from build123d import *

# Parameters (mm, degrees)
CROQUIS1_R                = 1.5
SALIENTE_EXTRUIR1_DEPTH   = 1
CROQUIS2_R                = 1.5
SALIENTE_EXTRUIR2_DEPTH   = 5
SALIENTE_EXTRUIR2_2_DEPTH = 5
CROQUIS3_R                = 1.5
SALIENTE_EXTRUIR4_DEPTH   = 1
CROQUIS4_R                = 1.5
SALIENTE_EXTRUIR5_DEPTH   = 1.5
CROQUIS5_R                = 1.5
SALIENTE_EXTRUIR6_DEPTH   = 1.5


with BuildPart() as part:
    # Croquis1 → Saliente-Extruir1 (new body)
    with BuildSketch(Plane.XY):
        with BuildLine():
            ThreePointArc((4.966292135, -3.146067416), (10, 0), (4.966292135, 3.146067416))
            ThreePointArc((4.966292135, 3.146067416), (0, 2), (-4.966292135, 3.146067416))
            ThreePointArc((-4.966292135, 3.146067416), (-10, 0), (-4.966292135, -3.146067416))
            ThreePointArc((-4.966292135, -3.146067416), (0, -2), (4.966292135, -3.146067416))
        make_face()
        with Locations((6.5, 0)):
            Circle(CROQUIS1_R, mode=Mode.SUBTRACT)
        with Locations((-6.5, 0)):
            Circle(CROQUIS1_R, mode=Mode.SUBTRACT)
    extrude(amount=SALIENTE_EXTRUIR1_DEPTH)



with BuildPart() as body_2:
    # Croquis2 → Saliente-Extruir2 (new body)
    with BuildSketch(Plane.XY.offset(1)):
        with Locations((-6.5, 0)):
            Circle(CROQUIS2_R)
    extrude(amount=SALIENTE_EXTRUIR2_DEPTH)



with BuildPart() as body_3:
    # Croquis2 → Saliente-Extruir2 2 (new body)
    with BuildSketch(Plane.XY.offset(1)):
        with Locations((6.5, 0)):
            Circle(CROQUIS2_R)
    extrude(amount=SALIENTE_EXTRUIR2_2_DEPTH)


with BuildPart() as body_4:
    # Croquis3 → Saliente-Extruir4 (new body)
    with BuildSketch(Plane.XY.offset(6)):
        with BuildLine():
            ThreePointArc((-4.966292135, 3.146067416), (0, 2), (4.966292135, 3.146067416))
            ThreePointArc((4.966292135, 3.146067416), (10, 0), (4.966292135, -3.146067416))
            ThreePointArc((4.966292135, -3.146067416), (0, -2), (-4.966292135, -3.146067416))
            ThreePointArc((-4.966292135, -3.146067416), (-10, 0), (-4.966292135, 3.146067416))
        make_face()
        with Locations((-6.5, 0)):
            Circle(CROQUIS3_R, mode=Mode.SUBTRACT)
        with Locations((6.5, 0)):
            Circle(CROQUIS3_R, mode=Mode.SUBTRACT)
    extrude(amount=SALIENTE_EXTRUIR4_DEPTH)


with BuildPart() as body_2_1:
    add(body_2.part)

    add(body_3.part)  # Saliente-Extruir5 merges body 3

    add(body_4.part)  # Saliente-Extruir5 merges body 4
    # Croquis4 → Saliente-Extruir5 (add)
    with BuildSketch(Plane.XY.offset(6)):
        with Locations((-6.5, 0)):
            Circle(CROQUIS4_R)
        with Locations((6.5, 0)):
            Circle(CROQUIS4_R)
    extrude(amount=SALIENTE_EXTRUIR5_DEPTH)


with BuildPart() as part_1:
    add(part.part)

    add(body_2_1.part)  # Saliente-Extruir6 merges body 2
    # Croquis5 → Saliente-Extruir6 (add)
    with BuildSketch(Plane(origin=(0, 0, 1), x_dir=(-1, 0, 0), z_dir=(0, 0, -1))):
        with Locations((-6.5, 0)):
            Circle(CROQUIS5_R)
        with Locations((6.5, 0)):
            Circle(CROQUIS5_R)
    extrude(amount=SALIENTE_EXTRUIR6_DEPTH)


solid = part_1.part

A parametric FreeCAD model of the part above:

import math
import FreeCAD as App
import Part
import Sketcher
from FreeCAD import Vector
Q = App.Units.Quantity

doc = App.newDocument("Part")
params = doc.addObject("Spreadsheet::Sheet", "Params")
for row, (alias, value) in enumerate([
    ("sketch1_diameter", "3 mm"),
    ("sketch1_radius", "3.5 mm"),
    ("pad1_length", "1 mm"),
    ("sketch2_diameter", "3 mm"),
    ("pad2_length", "5 mm"),
    ("sketch3_diameter", "3 mm"),
    ("pad3_length", "5 mm"),
    ("sketch4_diameter", "3 mm"),
    ("sketch4_radius", "3.5 mm"),
    ("pad4_length", "1 mm"),
    ("sketch5_diameter", "3 mm"),
    ("pad5_length", "1.5 mm"),
    ("sketch6_diameter", "3 mm"),
    ("pad6_length", "1.5 mm"),
], start=1):
    params.set(f"A{row}", alias)
    params.set(f"B{row}", "=" + value)
    params.setAlias(f"B{row}", alias)

body = doc.addObject("PartDesign::Body", "Body")

sketch1 = body.newObject("Sketcher::SketchObject", "Sketch")
sketch1.AttachmentSupport = (doc.getObject("XY_Plane"), [""])
sketch1.MapMode = "FlatFace"
sketch1.addGeometry([
    Part.ArcOfCircle(Part.Circle(Vector(6.5, 0, 0), Vector(0, 0, 1), 3.5), math.radians(-115.989234), math.radians(115.989234)),
    Part.ArcOfCircle(Part.Circle(Vector(0, 13.333333, 0), Vector(0, 0, 1), 11.333333), math.radians(-115.989234), math.radians(-64.010766)),
    Part.ArcOfCircle(Part.Circle(Vector(-6.5, 0, 0), Vector(0, 0, 1), 3.5), math.radians(64.010766), math.radians(295.989234)),
    Part.ArcOfCircle(Part.Circle(Vector(0, -13.333333, 0), Vector(0, 0, 1), 11.333333), math.radians(64.010766), math.radians(115.989234)),
    Part.Circle(Vector(-6.5, 0, 0), Vector(0, 0, 1), 1.5),
    Part.Circle(Vector(6.5, 0, 0), Vector(0, 0, 1), 1.5),
], False)
sketch1.addConstraint([
    Sketcher.Constraint("Tangent", 0, 2, 1, 2),
    Sketcher.Constraint("Tangent", 1, 1, 2, 1),
    Sketcher.Constraint("Tangent", 2, 2, 3, 2),
    Sketcher.Constraint("Tangent", 3, 1, 0, 1),
    Sketcher.Constraint("Coincident", 4, 3, 2, 3),
    Sketcher.Constraint("Coincident", 5, 3, 0, 3),
    Sketcher.Constraint("Equal", 0, 2),
    Sketcher.Constraint("Equal", 1, 3),
    Sketcher.Constraint("Equal", 4, 5),
    Sketcher.Constraint("Symmetric", 0, 3, 2, 3, -1, 1),
    Sketcher.Constraint("PointOnObject", 0, 3, -1),
    Sketcher.Constraint("Diameter", 4, Q("3 mm")),
    Sketcher.Constraint("Radius", 0, Q("3.5 mm")),
    Sketcher.Constraint("DistanceX", 2, 3, 0, 3, Q("13 mm")),
    Sketcher.Constraint("Radius", 1, Q("11.333333 mm")),
])
sketch1.setExpression("Constraints[11]", "Params.sketch1_diameter")
sketch1.setExpression("Constraints[12]", "Params.sketch1_radius")
pad1 = body.newObject("PartDesign::Pad", "Pad")
pad1.Profile = sketch1
pad1.setExpression("Length", "Params.pad1_length")
body2 = doc.addObject("PartDesign::Body", "Body001")

sketch2 = body2.newObject("Sketcher::SketchObject", "Sketch001")
sketch2.AttachmentSupport = (doc.getObject("XY_Plane001"), [""])
sketch2.MapMode = "FlatFace"
sketch2.AttachmentOffset = App.Placement(Vector(0, 0, 1), App.Rotation())
sketch2.addGeometry(Part.Circle(Vector(-6.5, 0, 0), Vector(0, 0, 1), 1.5), False)
sketch2.addConstraint([
    Sketcher.Constraint("PointOnObject", 0, 3, -1),
    Sketcher.Constraint("Diameter", 0, Q("3 mm")),
    Sketcher.Constraint("DistanceX", 0, 3, -1, 1, Q("6.5 mm")),
])
sketch2.setExpression("Constraints[1]", "Params.sketch2_diameter")
pad2 = body2.newObject("PartDesign::Pad", "Pad001")
pad2.Profile = sketch2
pad2.setExpression("Length", "Params.pad2_length")
body3 = doc.addObject("PartDesign::Body", "Body002")

sketch3 = body3.newObject("Sketcher::SketchObject", "Sketch002")
sketch3.AttachmentSupport = (doc.getObject("XY_Plane002"), [""])
sketch3.MapMode = "FlatFace"
sketch3.AttachmentOffset = App.Placement(Vector(0, 0, 1), App.Rotation())
sketch3.addGeometry(Part.Circle(Vector(6.5, 0, 0), Vector(0, 0, 1), 1.5), False)
sketch3.addConstraint([
    Sketcher.Constraint("PointOnObject", 0, 3, -1),
    Sketcher.Constraint("Diameter", 0, Q("3 mm")),
    Sketcher.Constraint("DistanceX", -1, 1, 0, 3, Q("6.5 mm")),
])
sketch3.setExpression("Constraints[1]", "Params.sketch3_diameter")
pad3 = body3.newObject("PartDesign::Pad", "Pad002")
pad3.Profile = sketch3
pad3.setExpression("Length", "Params.pad3_length")
body4 = doc.addObject("PartDesign::Body", "Body003")

sketch4 = body4.newObject("Sketcher::SketchObject", "Sketch003")
sketch4.AttachmentSupport = (doc.getObject("XY_Plane003"), [""])
sketch4.MapMode = "FlatFace"
sketch4.AttachmentOffset = App.Placement(Vector(0, 0, 6), App.Rotation())
sketch4.addGeometry([
    Part.ArcOfCircle(Part.Circle(Vector(0, 13.333333, 0), Vector(0, 0, 1), 11.333333), math.radians(-115.989234), math.radians(-64.010766)),
    Part.ArcOfCircle(Part.Circle(Vector(-6.5, 0, 0), Vector(0, 0, 1), 3.5), math.radians(64.010766), math.radians(295.989234)),
    Part.ArcOfCircle(Part.Circle(Vector(0, -13.333333, 0), Vector(0, 0, 1), 11.333333), math.radians(64.010766), math.radians(115.989234)),
    Part.ArcOfCircle(Part.Circle(Vector(6.5, 0, 0), Vector(0, 0, 1), 3.5), math.radians(-115.989234), math.radians(115.989234)),
    Part.Circle(Vector(6.5, 0, 0), Vector(0, 0, 1), 1.5),
    Part.Circle(Vector(-6.5, 0, 0), Vector(0, 0, 1), 1.5),
], False)
sketch4.addConstraint([
    Sketcher.Constraint("Tangent", 0, 1, 1, 1),
    Sketcher.Constraint("Tangent", 1, 2, 2, 2),
    Sketcher.Constraint("Tangent", 2, 1, 3, 1),
    Sketcher.Constraint("Tangent", 3, 2, 0, 2),
    Sketcher.Constraint("Coincident", 4, 3, 3, 3),
    Sketcher.Constraint("Coincident", 5, 3, 1, 3),
    Sketcher.Constraint("Equal", 0, 2),
    Sketcher.Constraint("Equal", 1, 3),
    Sketcher.Constraint("Equal", 4, 5),
    Sketcher.Constraint("Symmetric", 0, 3, 2, 3, -1, 1),
    Sketcher.Constraint("PointOnObject", 0, 3, -2),
    Sketcher.Constraint("Diameter", 4, Q("3 mm")),
    Sketcher.Constraint("Radius", 1, Q("3.5 mm")),
    Sketcher.Constraint("DistanceX", 1, 3, 3, 3, Q("13 mm")),
    Sketcher.Constraint("Radius", 0, Q("11.333333 mm")),
])
sketch4.setExpression("Constraints[11]", "Params.sketch4_diameter")
sketch4.setExpression("Constraints[12]", "Params.sketch4_radius")
pad4 = body4.newObject("PartDesign::Pad", "Pad003")
pad4.Profile = sketch4
pad4.setExpression("Length", "Params.pad4_length")
body2.AllowCompound = True
doc.recompute()

boolean = body2.newObject("PartDesign::Boolean", "Boolean")
boolean.Type = "Fuse"
boolean.addObjects([body3])
doc.recompute()

boolean2 = body2.newObject("PartDesign::Boolean", "Boolean001")
boolean2.Type = "Fuse"
boolean2.addObjects([body4])

sketch5 = body2.newObject("Sketcher::SketchObject", "Sketch004")
sketch5.AttachmentSupport = (doc.getObject("XY_Plane001"), [""])
sketch5.MapMode = "FlatFace"
sketch5.AttachmentOffset = App.Placement(Vector(0, 0, 6), App.Rotation())
sketch5.addGeometry([
    Part.Circle(Vector(-6.5, 0, 0), Vector(0, 0, 1), 1.5),
    Part.Circle(Vector(6.5, 0, 0), Vector(0, 0, 1), 1.5),
], False)
sketch5.addConstraint([
    Sketcher.Constraint("Equal", 0, 1),
    Sketcher.Constraint("Symmetric", 0, 3, 1, 3, -1, 1),
    Sketcher.Constraint("PointOnObject", 0, 3, -1),
    Sketcher.Constraint("Diameter", 0, Q("3 mm")),
    Sketcher.Constraint("DistanceX", 0, 3, 1, 3, Q("13 mm")),
])
sketch5.setExpression("Constraints[3]", "Params.sketch5_diameter")
pad5 = body2.newObject("PartDesign::Pad", "Pad004")
pad5.Profile = sketch5
pad5.setExpression("Length", "Params.pad5_length")
body.AllowCompound = True
doc.recompute()

boolean3 = body.newObject("PartDesign::Boolean", "Boolean002")
boolean3.Type = "Fuse"
boolean3.addObjects([body2])

sketch6 = body.newObject("Sketcher::SketchObject", "Sketch005")
sketch6.AttachmentSupport = (doc.getObject("XY_Plane"), [""])
sketch6.MapMode = "FlatFace"
sketch6.AttachmentOffset = App.Placement(Vector(0, 0, 1), App.Rotation())
sketch6.addGeometry([
    Part.Circle(Vector(6.5, 0, 0), Vector(0, 0, 1), 1.5),
    Part.Circle(Vector(-6.5, 0, 0), Vector(0, 0, 1), 1.5),
], False)
sketch6.addConstraint([
    Sketcher.Constraint("Equal", 0, 1),
    Sketcher.Constraint("Symmetric", 0, 3, 1, 3, -1, 1),
    Sketcher.Constraint("PointOnObject", 0, 3, -1),
    Sketcher.Constraint("Diameter", 0, Q("3 mm")),
    Sketcher.Constraint("DistanceX", 1, 3, 0, 3, Q("13 mm")),
])
sketch6.setExpression("Constraints[3]", "Params.sketch6_diameter")
pad6 = body.newObject("PartDesign::Pad", "Pad005")
pad6.Profile = sketch6
pad6.setExpression("Length", "Params.pad6_length")
pad6.Reversed = True

doc.recompute()
